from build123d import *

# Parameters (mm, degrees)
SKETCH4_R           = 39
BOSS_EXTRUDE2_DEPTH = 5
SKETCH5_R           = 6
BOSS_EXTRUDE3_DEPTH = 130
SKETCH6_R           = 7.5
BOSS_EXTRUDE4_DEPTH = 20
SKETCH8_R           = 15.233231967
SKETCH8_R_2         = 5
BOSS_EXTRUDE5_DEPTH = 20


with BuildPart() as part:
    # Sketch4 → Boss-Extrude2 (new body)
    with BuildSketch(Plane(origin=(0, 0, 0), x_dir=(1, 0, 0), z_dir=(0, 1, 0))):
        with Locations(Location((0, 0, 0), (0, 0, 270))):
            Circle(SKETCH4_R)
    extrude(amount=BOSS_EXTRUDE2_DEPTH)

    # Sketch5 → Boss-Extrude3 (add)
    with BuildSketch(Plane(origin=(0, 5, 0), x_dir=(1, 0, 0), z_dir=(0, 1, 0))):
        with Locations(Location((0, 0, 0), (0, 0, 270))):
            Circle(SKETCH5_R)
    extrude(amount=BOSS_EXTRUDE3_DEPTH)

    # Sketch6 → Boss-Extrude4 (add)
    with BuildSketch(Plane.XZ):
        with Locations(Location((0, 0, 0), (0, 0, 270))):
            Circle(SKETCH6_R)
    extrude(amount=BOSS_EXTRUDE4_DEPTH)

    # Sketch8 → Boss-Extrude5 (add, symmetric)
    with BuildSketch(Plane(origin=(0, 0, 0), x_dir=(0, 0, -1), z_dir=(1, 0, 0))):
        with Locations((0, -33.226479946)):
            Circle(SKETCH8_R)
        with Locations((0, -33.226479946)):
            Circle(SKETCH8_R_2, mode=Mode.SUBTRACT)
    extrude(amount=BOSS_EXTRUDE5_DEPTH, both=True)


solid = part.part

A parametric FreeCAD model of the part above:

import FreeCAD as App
import Part
import Sketcher
Q = App.Units.Quantity

doc = App.newDocument("Part")
body = doc.addObject("PartDesign::Body", "Body")

# Sketch on XZ plane
sketch1 = body.newObject("Sketcher::SketchObject", "Sketch")
sketch1.AttachmentSupport = (doc.getObject("XZ_Plane"), [""])
sketch1.MapMode = "FlatFace"
sketch1.addGeometry(Part.Circle(App.Vector(0, 0, 0), App.Vector(0, 0, 1), 39), False)
sketch1.addConstraint(Sketcher.Constraint("Coincident", 0, 3, -1, 1))
sketch1.addConstraint(Sketcher.Constraint("Diameter", 0, Q("78 mm")))
pad1 = body.newObject("PartDesign::Pad", "Pad")
pad1.Profile = sketch1
pad1.Length = 5
pad1.Reversed = True

# Sketch on XZ plane
sketch2 = body.newObject("Sketcher::SketchObject", "Sketch001")
sketch2.AttachmentSupport = (doc.getObject("XZ_Plane"), [""])
sketch2.MapMode = "FlatFace"
sketch2.AttachmentOffset = App.Placement(App.Vector(0, 0, -5), App.Rotation())
sketch2.addGeometry(Part.Circle(App.Vector(0, 0, 0), App.Vector(0, 0, 1), 6), False)
sketch2.addConstraint(Sketcher.Constraint("Coincident", 0, 3, -1, 1))
sketch2.addConstraint(Sketcher.Constraint("Diameter", 0, Q("12 mm")))
pad2 = body.newObject("PartDesign::Pad", "Pad001")
pad2.Profile = sketch2
pad2.Length = 130
pad2.Reversed = True

# Sketch on XZ plane
sketch3 = body.newObject("Sketcher::SketchObject", "Sketch002")
sketch3.AttachmentSupport = (doc.getObject("XZ_Plane"), [""])
sketch3.MapMode = "FlatFace"
sketch3.addGeometry(Part.Circle(App.Vector(0, 0, 0), App.Vector(0, 0, 1), 8), False)
sketch3.addConstraint(Sketcher.Constraint("Coincident", 0, 3, -1, 1))
sketch3.addConstraint(Sketcher.Constraint("Diameter", 0, Q("15 mm")))
pad3 = body.newObject("PartDesign::Pad", "Pad002")
pad3.Profile = sketch3
pad3.Length = 20

# Sketch on YZ plane
sketch4 = body.newObject("Sketcher::SketchObject", "Sketch003")
sketch4.AttachmentSupport = (doc.getObject("YZ_Plane"), [""])
sketch4.MapMode = "FlatFace"
sketch4.addGeometry(Part.Circle(App.Vector(-33, 0, 0), App.Vector(0, 0, 1), 15), False)
sketch4.addGeometry(Part.Circle(App.Vector(-33, 0, 0), App.Vector(0, 0, 1), 5), False)
sketch4.addConstraint(Sketcher.Constraint("Coincident", 1, 3, 0, 3))
sketch4.addConstraint(Sketcher.Constraint("PointOnObject", 0, 3, -1))
sketch4.addConstraint(Sketcher.Constraint("Diameter", 1, Q("10 mm")))
sketch4.addConstraint(Sketcher.Constraint("Diameter", 0, Q("30.466464 mm")))
sketch4.addConstraint(Sketcher.Constraint("DistanceX", 0, 3, -1, 1, Q("33.22648 mm")))
pad4 = body.newObject("PartDesign::Pad", "Pad003")
pad4.Profile = sketch4
pad4.Length = 40
pad4.Midplane = True

doc.recompute()
